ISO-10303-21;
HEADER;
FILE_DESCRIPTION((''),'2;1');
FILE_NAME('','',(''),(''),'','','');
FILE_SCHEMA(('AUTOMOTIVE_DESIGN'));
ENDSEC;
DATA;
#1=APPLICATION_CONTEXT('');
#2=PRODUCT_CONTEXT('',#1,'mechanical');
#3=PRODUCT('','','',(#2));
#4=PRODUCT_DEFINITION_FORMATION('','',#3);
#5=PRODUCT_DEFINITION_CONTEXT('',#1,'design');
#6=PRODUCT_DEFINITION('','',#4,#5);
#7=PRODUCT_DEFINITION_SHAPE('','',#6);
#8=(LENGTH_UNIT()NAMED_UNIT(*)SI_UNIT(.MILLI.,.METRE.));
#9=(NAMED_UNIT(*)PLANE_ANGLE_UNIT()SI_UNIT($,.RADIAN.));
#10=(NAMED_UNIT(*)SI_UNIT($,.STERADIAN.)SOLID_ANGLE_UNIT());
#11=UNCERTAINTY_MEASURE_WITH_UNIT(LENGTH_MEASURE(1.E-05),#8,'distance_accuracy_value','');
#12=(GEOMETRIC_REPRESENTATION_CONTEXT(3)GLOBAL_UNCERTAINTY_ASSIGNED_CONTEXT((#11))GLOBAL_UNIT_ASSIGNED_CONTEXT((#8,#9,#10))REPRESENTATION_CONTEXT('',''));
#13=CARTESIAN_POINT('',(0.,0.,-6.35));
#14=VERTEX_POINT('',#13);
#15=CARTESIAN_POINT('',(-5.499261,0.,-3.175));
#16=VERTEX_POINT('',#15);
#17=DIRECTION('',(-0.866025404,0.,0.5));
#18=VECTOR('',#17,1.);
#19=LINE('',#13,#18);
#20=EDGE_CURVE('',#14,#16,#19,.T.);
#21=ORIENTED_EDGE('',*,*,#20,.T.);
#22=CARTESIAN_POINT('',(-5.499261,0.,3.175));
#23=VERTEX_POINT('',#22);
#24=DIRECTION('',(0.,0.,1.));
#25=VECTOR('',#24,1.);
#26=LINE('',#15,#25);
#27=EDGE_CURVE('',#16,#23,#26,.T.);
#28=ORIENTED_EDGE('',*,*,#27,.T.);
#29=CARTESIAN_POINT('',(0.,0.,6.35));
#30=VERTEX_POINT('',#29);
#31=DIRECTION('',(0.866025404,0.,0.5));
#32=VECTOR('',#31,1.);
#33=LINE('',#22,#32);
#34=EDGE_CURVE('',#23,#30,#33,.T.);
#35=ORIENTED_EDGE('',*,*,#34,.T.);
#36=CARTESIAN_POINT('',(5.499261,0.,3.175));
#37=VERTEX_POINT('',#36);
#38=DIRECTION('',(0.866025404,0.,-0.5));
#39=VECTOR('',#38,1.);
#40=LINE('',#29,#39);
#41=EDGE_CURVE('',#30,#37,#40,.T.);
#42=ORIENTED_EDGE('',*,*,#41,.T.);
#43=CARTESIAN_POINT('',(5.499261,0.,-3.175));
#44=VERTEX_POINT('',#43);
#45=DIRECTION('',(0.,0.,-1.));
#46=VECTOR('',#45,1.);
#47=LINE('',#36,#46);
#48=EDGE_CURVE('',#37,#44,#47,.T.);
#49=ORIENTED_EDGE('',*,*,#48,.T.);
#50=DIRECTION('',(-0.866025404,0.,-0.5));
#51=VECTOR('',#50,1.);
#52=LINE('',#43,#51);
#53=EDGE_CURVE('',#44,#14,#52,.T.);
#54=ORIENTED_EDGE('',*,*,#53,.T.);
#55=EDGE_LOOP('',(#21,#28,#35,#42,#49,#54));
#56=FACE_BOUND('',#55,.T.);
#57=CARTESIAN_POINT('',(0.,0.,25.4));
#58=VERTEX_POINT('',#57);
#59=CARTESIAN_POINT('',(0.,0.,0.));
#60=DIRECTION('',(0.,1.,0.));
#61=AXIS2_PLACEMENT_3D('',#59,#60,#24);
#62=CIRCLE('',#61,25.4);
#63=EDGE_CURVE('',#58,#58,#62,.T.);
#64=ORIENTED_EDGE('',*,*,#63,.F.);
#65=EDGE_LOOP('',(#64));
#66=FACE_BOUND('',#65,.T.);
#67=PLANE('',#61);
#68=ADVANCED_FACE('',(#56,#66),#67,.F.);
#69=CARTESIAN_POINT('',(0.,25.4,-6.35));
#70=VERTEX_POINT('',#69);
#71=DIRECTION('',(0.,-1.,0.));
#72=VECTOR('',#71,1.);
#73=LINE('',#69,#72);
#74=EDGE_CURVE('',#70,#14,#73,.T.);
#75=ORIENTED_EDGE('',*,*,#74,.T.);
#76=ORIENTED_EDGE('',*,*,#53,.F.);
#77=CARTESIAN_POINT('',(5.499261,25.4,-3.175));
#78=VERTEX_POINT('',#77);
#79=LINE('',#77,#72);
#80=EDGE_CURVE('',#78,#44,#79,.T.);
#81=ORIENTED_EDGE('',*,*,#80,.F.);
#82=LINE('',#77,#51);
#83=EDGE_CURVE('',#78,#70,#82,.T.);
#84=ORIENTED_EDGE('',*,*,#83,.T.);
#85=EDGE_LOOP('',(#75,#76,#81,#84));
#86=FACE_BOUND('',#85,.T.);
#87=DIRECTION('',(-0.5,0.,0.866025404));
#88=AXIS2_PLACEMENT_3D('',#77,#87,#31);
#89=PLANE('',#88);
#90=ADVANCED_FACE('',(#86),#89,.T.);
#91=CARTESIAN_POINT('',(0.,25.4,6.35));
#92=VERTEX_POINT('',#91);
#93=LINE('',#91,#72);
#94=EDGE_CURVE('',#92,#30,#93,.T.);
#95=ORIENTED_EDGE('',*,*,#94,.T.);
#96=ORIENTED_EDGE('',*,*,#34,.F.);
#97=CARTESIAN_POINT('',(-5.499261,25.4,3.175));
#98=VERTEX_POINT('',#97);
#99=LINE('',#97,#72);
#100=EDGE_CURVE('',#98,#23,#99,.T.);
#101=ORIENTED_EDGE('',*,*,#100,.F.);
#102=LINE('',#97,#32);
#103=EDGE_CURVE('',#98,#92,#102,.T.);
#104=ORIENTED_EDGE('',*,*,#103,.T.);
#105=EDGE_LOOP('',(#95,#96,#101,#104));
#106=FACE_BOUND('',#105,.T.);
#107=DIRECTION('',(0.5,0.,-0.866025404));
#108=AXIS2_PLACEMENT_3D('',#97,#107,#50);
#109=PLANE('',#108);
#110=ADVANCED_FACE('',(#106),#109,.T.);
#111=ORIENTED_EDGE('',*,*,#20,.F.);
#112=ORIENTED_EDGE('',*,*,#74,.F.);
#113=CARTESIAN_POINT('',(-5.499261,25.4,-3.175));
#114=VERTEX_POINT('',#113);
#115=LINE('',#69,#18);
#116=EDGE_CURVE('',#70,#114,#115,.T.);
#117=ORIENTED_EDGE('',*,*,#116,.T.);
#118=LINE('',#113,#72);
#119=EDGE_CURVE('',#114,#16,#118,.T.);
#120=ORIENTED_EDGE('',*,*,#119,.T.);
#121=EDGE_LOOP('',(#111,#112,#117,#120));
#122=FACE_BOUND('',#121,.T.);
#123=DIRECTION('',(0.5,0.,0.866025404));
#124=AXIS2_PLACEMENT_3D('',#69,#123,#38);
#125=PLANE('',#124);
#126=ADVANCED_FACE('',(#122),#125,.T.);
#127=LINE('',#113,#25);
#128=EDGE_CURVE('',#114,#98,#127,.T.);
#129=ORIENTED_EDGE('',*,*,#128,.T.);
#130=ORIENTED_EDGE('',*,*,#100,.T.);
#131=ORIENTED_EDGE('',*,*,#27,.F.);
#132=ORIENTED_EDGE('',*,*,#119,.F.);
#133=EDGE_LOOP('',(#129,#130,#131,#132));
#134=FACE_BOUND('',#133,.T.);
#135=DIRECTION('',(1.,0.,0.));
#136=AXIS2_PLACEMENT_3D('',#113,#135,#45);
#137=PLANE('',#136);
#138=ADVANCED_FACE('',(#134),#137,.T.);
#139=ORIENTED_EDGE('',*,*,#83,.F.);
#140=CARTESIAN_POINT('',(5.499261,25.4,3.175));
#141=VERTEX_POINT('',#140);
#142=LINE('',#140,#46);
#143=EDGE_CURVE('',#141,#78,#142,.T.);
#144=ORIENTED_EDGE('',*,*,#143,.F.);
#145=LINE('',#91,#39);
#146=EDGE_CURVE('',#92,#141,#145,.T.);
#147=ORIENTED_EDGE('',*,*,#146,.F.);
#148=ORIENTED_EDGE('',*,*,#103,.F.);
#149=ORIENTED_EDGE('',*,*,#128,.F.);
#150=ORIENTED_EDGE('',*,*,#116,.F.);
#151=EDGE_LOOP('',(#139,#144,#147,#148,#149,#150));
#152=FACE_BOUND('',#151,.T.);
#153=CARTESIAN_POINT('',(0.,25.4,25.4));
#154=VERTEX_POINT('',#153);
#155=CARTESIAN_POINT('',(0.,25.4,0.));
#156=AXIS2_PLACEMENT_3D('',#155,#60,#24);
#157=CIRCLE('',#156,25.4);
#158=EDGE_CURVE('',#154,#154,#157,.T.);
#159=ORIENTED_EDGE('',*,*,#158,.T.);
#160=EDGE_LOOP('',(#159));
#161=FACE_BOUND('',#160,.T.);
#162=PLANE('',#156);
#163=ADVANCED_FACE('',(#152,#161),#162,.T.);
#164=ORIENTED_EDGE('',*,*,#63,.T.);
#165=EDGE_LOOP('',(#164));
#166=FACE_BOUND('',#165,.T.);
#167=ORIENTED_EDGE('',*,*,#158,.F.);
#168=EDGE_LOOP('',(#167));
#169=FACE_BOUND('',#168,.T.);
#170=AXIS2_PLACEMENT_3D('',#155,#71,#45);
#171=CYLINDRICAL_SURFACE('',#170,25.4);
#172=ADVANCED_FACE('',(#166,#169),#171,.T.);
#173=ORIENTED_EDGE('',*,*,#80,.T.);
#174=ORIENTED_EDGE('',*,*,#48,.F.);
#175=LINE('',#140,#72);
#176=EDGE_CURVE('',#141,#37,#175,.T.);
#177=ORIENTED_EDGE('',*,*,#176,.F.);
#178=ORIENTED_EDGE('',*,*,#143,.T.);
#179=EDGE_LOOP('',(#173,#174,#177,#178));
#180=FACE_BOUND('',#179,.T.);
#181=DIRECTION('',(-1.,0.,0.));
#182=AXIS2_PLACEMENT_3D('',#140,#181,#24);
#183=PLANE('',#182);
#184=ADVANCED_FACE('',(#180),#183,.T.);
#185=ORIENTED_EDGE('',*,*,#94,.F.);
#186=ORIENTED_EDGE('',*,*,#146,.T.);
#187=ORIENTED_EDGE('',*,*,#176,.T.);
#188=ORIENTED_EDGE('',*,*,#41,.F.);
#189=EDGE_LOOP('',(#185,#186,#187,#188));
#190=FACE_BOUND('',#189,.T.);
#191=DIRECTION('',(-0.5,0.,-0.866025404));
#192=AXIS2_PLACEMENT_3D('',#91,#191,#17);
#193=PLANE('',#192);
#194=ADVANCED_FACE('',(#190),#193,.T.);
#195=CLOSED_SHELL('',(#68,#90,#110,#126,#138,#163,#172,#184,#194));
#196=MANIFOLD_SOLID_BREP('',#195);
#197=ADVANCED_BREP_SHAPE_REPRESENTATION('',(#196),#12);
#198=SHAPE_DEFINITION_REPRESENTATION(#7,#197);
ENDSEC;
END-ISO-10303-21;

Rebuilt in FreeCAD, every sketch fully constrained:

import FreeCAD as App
import Part
import Sketcher
from FreeCAD import Vector
Q = App.Units.Quantity


def add_polygon(sketch, points):
    """Adds a closed chain of lines whose ends are joined by coincident constraints."""
    first, n = sketch.GeometryCount, len(points)
    for a, b in zip(points, points[1:] + points[:1]):
        sketch.addGeometry(Part.LineSegment(App.Vector(*a, 0), App.Vector(*b, 0)), False)
    for i in range(n):
        sketch.addConstraint(Sketcher.Constraint("Coincident", first + i, 2, first + (i + 1) % n, 1))

doc = App.newDocument("Part")
body = doc.addObject("PartDesign::Body", "Body")

# Sketch on XZ plane
sketch1 = body.newObject("Sketcher::SketchObject", "Sketch")
sketch1.AttachmentSupport = (doc.getObject("XZ_Plane"), [""])
sketch1.MapMode = "FlatFace"
sketch1.addGeometry(Part.Circle(Vector(0, 0, 0), Vector(0, 0, 1), 25.4), False)  # 0
add_polygon(sketch1, [(5.499261, -3.175), (5.499261, 3.175), (0, 6.35), (-5.499261, 3.175), (-5.499261, -3.175), (0, -6.35)])  # lines 1-6
sketch1.addConstraint([
    Sketcher.Constraint("Vertical", 1),
    Sketcher.Constraint("Vertical", 4),
    Sketcher.Constraint("Coincident", 0, 3, -1, 1),
    Sketcher.Constraint("Symmetric", 1, 2, 4, 2, -1, 1),
    Sketcher.Constraint("Symmetric", 2, 2, 5, 2, -1, 1),
    Sketcher.Constraint("PointOnObject", 2, 2, -2),
    Sketcher.Constraint("Parallel", 3, 6),
    Sketcher.Constraint("Horizontal", 1, 2, 3, 2),
    Sketcher.Constraint("Diameter", 0, Q("2 in")),
    Sketcher.Constraint("Angle", 2, Q("150 deg")),
    Sketcher.Constraint("DistanceY", 1, 1, 1, 2, Q("0.25 in")),
    Sketcher.Constraint("DistanceY", 5, 2, 2, 2, Q("0.5 in")),
])
pad1 = body.newObject("PartDesign::Pad", "Pad")
pad1.Profile = sketch1
pad1.Length = Q("1 in")
pad1.Reversed = True

doc.recompute()
